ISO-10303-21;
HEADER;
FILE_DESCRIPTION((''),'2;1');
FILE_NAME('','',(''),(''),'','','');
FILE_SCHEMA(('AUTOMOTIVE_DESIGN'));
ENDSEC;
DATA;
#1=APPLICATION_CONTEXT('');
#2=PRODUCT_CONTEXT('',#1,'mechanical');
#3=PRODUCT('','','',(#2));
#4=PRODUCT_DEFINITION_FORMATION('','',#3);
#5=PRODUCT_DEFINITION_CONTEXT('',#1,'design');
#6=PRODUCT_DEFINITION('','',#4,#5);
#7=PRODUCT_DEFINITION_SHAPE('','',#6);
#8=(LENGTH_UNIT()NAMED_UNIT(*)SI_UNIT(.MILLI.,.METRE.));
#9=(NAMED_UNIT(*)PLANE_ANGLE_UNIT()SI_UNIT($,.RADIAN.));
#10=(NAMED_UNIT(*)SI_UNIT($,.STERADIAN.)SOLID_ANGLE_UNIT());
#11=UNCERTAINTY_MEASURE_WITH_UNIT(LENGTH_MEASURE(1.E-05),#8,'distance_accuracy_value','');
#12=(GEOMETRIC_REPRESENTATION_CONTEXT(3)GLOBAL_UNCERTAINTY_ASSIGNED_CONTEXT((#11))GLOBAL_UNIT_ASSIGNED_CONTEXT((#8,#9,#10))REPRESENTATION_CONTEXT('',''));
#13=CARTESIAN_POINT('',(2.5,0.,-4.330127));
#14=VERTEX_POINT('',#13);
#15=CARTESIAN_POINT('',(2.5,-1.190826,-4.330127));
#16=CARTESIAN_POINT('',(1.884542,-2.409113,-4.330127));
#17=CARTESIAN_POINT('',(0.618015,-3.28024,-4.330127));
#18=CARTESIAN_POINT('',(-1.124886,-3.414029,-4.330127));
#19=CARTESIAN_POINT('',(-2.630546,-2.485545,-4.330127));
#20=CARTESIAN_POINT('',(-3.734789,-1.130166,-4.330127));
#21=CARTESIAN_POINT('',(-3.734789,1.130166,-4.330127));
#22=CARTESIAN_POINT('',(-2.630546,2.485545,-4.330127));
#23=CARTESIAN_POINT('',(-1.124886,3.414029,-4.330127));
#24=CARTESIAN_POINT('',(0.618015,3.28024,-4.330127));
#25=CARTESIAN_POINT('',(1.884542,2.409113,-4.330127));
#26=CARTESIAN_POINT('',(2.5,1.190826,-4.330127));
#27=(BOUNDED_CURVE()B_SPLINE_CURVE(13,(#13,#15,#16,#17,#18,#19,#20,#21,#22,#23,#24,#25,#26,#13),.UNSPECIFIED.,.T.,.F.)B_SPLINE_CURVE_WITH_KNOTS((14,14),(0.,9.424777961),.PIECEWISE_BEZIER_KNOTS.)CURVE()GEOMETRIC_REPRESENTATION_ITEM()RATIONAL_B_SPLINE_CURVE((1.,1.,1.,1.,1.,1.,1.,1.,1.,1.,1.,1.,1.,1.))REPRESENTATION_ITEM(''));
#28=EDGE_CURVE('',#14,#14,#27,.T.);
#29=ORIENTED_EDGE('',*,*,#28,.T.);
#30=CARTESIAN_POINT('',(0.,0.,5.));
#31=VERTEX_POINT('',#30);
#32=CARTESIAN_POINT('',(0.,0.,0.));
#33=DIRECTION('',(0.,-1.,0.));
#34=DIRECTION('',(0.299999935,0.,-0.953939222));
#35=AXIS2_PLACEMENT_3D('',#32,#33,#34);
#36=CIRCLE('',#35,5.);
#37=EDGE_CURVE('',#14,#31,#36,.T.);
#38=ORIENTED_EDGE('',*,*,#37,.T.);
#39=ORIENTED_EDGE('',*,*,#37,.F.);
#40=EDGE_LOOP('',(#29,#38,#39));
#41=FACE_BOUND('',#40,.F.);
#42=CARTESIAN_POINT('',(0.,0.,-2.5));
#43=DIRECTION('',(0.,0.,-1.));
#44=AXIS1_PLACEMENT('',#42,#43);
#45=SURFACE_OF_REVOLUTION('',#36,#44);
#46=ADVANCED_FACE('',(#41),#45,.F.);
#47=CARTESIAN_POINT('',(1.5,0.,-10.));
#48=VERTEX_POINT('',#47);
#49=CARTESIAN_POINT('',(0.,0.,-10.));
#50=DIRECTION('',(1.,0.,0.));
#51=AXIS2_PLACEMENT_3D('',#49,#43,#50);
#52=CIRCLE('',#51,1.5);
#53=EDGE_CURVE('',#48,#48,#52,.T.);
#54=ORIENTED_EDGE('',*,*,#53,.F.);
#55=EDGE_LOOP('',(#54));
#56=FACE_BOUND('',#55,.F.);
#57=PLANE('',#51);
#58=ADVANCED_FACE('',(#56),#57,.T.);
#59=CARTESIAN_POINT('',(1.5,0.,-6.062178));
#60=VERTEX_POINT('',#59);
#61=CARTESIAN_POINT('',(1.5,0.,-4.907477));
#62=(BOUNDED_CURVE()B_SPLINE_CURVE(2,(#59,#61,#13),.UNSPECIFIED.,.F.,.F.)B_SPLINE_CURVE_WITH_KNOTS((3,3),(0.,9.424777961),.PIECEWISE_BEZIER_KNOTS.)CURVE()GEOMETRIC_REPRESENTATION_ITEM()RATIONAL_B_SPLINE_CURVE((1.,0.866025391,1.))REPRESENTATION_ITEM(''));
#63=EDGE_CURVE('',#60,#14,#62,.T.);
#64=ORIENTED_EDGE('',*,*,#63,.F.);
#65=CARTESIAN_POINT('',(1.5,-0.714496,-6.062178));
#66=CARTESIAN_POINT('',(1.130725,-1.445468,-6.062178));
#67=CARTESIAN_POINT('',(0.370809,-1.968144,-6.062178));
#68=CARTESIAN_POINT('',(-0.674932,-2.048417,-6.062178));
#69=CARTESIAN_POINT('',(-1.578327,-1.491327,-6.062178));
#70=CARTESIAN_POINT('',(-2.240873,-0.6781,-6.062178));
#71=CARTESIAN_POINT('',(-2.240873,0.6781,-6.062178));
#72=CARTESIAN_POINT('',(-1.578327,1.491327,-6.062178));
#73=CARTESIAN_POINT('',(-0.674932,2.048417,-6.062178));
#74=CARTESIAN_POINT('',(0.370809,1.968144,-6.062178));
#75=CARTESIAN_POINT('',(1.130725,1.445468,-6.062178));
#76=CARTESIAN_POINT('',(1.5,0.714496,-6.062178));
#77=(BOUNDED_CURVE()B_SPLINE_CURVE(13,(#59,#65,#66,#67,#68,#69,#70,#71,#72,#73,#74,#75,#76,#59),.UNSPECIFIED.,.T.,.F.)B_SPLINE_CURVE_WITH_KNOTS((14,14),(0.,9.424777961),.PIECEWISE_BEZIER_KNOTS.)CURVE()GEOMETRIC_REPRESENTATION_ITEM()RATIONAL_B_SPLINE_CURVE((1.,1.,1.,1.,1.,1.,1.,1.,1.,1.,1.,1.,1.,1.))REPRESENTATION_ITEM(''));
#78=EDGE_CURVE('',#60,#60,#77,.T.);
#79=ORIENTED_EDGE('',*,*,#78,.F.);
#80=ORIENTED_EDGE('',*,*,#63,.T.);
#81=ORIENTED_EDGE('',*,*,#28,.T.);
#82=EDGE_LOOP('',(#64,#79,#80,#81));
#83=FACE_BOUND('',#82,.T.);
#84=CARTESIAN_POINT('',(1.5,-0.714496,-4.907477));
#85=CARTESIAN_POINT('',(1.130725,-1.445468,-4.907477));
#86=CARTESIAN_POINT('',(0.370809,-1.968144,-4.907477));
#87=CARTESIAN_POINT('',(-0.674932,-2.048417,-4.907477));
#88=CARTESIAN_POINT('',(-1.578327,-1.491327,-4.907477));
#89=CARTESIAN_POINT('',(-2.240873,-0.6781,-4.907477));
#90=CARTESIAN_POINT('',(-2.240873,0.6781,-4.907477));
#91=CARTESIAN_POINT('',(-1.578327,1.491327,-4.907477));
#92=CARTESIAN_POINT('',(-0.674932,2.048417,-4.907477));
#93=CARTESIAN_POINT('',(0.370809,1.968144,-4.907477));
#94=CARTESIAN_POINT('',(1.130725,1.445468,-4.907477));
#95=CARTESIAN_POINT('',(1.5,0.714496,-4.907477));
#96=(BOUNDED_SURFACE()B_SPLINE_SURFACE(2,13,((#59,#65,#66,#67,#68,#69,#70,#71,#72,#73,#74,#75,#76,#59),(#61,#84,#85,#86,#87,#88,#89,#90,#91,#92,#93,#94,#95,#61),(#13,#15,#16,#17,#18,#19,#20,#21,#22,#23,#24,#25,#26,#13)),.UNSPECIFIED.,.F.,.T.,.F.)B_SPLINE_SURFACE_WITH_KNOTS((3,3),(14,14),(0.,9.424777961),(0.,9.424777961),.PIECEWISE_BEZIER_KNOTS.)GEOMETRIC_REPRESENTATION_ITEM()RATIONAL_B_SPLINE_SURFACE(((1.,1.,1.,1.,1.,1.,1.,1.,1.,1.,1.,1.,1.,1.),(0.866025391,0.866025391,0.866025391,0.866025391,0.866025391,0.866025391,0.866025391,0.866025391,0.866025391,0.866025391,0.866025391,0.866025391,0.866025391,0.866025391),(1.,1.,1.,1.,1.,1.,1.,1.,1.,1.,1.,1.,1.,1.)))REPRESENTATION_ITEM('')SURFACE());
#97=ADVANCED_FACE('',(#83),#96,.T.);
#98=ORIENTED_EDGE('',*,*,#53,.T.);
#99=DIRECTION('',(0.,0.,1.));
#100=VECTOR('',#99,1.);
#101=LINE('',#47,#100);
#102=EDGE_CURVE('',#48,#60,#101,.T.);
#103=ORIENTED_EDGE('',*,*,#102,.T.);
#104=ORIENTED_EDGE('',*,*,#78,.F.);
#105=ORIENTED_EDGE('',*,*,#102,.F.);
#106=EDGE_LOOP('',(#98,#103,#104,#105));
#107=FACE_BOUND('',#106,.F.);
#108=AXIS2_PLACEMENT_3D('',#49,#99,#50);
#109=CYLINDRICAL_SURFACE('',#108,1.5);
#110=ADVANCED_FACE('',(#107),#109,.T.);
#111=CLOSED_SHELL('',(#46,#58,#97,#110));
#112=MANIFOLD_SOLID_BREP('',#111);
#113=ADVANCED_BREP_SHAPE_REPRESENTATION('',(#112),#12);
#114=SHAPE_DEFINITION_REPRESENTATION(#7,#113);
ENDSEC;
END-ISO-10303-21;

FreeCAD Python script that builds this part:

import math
import FreeCAD as App
import Part
import Sketcher

V = App.Vector


def edges_at(feature, points):
    """Names of the edges that pass closest to the given points."""
    edges = feature.Shape.Edges
    near = lambda p: min(range(len(edges)), key=lambda i: edges[i].distToShape(Part.Vertex(*p))[0])
    return sorted({f"Edge{near(p) + 1}" for p in points})

doc = App.newDocument("Part")
body = doc.addObject("PartDesign::Body", "Body")

sketch1 = body.newObject("Sketcher::SketchObject", "Sketch")
sketch1.AttachmentSupport = (doc.getObject("XZ_Plane"), [""])
sketch1.MapMode = "FlatFace"
sketch1.addGeometry(Part.LineSegment(V(1.5, -10, 0), V(1.5, -4.769696, 0)), False)
sketch1.addGeometry(Part.ArcOfCircle(Part.Circle(V(0, 0, 0), V(0, 0, 1), 5), math.radians(-72.542401), math.radians(90.000004)), False)
sketch1.addGeometry(Part.LineSegment(V(0, 5, 0), V(0, -10, 0)), False)
sketch1.addGeometry(Part.LineSegment(V(0, -10, 0), V(1.5, -10, 0)), False)
sketch1.addConstraint(Sketcher.Constraint("Coincident", 0, 2, 1, 1))
sketch1.addConstraint(Sketcher.Constraint("Coincident", 1, 2, 2, 1))
sketch1.addConstraint(Sketcher.Constraint("Coincident", 2, 2, 3, 1))
sketch1.addConstraint(Sketcher.Constraint("Coincident", 3, 2, 0, 1))
sketch1.addConstraint(Sketcher.Constraint("Vertical", 0))
sketch1.addConstraint(Sketcher.Constraint("Vertical", 2))
sketch1.addConstraint(Sketcher.Constraint("Horizontal", 3))
sketch1.addConstraint(Sketcher.Constraint("Coincident", 1, 3, -1, 1))
sketch1.addConstraint(Sketcher.Constraint("PointOnObject", 1, 2, -2))
sketch1.addConstraint(Sketcher.Constraint("Radius", 1, 5.0))
sketch1.addConstraint(Sketcher.Constraint("DistanceY", 2, 2, 2, 1, 15.0))
sketch1.addConstraint(Sketcher.Constraint("DistanceX", 3, 1, 3, 2, 1.5))
revolution = body.newObject("PartDesign::Revolution", "Revolution")
revolution.Profile = sketch1
revolution.ReferenceAxis = (sketch1, ["V_Axis"])
revolution.Angle = 360
doc.recompute()

fillet = body.newObject("PartDesign::Fillet", "Fillet")
fillet.Base = (revolution, edges_at(revolution, [(-1.5, 0, -4.77), (4.942, 0, 0.759)]))
fillet.Radius = 2

doc.recompute()
